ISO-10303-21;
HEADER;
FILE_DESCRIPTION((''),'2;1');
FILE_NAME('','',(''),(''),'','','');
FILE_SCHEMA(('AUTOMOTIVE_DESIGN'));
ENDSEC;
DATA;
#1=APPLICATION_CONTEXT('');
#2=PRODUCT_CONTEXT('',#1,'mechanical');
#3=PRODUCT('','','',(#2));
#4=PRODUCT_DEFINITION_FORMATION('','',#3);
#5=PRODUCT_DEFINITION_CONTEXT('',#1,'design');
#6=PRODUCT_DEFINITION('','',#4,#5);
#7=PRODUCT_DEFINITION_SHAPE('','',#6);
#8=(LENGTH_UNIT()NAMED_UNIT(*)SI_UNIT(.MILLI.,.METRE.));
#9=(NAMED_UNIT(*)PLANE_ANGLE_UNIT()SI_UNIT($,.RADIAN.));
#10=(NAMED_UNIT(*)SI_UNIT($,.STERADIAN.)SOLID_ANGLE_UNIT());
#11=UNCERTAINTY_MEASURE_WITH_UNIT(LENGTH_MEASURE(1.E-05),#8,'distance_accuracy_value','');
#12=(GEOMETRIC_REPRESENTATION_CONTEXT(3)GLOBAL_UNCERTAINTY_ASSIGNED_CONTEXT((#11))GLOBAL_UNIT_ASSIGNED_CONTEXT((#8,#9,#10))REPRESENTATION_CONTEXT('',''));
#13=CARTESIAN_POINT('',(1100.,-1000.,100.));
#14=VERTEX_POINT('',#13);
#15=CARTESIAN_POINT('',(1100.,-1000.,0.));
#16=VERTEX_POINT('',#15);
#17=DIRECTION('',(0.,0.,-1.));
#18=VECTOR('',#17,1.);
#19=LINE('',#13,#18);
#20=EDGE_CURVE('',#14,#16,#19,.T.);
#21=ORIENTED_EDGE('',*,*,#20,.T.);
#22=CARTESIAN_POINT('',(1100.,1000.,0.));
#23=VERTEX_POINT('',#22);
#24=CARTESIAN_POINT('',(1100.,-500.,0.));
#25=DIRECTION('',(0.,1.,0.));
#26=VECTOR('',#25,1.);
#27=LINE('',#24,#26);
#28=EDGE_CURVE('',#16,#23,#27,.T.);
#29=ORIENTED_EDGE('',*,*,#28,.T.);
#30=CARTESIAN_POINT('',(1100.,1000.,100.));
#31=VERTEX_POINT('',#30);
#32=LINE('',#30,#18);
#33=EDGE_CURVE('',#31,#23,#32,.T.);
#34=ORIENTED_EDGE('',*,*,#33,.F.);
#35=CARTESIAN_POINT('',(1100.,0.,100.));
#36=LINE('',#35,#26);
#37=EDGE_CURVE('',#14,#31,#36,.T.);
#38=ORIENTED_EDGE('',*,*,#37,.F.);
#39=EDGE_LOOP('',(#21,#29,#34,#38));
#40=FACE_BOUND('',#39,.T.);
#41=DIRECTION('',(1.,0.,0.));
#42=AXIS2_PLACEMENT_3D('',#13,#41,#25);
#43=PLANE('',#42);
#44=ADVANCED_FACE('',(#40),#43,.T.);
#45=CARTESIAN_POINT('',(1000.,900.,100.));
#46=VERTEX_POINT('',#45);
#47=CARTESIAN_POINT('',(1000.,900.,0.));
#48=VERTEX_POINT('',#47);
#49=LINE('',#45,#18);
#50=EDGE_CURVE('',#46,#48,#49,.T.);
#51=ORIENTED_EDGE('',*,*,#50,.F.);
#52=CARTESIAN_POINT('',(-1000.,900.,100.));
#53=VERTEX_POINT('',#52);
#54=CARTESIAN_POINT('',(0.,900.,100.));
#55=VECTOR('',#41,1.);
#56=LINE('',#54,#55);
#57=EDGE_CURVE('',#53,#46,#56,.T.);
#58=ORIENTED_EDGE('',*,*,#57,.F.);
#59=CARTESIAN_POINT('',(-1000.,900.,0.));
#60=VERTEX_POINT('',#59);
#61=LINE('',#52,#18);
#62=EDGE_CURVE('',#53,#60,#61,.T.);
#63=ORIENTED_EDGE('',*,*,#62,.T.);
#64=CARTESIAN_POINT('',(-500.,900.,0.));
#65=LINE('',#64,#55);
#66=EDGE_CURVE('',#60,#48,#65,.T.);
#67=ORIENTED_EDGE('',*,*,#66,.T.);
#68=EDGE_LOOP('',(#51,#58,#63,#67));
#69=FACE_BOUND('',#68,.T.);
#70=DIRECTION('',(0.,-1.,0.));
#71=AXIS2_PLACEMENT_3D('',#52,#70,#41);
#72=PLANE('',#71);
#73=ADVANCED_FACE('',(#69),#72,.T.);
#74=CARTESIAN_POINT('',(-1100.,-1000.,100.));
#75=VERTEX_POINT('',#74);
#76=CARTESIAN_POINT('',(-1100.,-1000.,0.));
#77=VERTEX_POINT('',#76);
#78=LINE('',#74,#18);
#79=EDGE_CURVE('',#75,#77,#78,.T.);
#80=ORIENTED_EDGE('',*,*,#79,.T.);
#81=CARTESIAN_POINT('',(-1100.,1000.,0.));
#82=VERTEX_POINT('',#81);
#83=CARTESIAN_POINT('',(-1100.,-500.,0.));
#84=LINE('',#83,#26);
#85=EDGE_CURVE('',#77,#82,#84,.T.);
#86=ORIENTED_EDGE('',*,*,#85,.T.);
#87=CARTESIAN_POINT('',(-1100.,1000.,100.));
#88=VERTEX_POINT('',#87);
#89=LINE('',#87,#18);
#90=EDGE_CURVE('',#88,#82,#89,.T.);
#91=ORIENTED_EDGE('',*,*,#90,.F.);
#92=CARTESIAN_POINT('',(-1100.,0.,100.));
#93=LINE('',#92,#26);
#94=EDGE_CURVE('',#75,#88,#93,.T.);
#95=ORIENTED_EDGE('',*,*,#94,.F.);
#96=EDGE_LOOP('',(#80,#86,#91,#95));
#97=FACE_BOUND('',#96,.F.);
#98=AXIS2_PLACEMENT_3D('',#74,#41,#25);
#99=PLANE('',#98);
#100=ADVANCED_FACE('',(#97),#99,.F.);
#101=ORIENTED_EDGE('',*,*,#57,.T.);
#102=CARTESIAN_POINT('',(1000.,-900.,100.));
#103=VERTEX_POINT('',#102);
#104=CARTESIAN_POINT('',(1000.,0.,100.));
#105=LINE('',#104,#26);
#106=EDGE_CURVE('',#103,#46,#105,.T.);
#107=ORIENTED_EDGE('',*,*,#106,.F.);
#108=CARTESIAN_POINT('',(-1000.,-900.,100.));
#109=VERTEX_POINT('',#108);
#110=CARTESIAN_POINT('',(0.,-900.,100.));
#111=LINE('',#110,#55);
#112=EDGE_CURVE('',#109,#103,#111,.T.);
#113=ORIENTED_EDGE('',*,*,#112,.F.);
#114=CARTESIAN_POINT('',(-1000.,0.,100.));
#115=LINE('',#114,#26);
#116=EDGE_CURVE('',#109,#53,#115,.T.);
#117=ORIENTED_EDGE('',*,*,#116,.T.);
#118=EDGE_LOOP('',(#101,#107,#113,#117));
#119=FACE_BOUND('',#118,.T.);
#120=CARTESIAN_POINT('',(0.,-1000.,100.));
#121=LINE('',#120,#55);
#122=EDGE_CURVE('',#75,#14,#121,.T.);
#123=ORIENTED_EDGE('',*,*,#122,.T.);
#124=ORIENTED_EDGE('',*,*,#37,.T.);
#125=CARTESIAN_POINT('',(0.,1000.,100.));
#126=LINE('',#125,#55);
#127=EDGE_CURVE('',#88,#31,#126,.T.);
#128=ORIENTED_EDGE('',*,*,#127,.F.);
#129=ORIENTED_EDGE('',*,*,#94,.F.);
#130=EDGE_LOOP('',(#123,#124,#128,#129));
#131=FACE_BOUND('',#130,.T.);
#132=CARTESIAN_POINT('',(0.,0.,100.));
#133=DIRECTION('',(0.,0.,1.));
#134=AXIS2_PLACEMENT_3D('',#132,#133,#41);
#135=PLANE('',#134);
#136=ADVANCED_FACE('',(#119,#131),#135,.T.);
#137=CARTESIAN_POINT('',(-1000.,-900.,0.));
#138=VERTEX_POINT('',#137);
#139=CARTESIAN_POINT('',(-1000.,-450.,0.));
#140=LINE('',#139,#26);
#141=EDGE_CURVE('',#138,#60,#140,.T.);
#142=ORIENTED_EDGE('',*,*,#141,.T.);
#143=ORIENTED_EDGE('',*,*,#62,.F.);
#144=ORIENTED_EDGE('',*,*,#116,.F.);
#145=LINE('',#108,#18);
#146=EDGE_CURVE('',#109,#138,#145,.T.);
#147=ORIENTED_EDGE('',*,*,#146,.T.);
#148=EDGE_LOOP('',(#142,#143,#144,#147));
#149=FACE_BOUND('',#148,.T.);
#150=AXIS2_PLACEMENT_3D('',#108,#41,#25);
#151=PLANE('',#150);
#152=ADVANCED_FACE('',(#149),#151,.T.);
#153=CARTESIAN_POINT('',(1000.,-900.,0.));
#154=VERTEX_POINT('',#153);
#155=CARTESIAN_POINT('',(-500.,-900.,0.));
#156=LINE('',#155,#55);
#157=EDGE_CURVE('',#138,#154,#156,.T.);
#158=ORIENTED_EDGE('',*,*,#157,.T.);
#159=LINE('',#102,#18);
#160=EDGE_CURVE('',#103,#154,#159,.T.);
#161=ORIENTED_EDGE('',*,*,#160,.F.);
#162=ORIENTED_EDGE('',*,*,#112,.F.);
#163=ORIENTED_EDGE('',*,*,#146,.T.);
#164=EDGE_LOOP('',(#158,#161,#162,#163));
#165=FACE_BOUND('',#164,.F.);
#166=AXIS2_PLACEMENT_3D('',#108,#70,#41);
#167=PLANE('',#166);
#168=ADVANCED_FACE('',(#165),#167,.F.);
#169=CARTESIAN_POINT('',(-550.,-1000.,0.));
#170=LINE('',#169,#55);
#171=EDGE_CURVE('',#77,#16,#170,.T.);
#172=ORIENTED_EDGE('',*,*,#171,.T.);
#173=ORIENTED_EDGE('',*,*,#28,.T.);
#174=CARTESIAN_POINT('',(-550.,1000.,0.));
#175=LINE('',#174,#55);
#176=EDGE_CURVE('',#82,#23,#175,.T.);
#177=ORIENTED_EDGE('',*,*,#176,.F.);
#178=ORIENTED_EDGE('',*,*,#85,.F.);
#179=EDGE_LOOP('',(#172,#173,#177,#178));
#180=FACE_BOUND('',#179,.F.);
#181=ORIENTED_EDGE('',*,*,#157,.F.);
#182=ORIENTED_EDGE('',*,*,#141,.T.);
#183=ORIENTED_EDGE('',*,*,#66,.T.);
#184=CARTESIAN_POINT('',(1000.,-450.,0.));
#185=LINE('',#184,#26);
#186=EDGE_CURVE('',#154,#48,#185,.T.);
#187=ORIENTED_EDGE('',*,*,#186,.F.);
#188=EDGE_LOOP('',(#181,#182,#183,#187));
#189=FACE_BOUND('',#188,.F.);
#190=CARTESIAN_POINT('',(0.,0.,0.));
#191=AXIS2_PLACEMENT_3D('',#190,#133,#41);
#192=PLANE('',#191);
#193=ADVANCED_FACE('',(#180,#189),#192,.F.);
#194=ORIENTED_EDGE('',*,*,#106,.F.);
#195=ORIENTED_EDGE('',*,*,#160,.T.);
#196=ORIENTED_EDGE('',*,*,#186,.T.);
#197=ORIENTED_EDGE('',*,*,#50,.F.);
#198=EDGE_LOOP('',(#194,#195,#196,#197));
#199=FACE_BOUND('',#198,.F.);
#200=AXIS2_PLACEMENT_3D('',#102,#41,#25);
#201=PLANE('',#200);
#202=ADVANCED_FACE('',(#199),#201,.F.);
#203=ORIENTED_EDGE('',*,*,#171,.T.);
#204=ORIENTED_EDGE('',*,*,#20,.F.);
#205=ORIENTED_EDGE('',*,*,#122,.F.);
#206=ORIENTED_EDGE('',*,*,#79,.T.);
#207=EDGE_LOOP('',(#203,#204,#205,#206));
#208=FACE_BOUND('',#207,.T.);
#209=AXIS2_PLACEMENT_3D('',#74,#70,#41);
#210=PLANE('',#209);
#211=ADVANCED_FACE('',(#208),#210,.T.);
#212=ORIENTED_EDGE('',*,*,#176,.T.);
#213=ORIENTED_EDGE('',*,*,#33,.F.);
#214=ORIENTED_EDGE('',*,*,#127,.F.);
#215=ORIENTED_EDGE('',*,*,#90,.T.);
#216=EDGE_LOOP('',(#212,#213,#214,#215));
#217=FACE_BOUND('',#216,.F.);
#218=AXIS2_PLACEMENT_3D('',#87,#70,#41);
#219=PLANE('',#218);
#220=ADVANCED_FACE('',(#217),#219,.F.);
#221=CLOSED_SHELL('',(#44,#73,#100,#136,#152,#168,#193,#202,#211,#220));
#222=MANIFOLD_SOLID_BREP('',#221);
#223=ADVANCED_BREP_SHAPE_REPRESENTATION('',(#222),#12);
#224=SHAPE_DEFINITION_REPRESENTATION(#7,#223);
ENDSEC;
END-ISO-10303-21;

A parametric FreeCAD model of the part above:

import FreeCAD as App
import Part
import Sketcher
from FreeCAD import Vector

doc = App.newDocument("Part")
body = doc.addObject("PartDesign::Body", "Body")

# Sketch on XY plane
sketch1 = body.newObject("Sketcher::SketchObject", "Sketch")
sketch1.AttachmentSupport = (doc.getObject("XY_Plane"), [""])
sketch1.MapMode = "FlatFace"
sketch1.addGeometry(Part.LineSegment(Vector(-1200, 1100, 0), Vector(-1200, -1100, 0)), False)
sketch1.addGeometry(Part.LineSegment(Vector(-1200, -1100, 0), Vector(1200, -1100, 0)), False)
sketch1.addGeometry(Part.LineSegment(Vector(1200, -1100, 0), Vector(1200, 1100, 0)), False)
sketch1.addGeometry(Part.LineSegment(Vector(1200, 1100, 0), Vector(-1200, 1100, 0)), False)
sketch1.addConstraint(Sketcher.Constraint("Coincident", 0, 2, 1, 1))
sketch1.addConstraint(Sketcher.Constraint("Coincident", 1, 2, 2, 1))
sketch1.addConstraint(Sketcher.Constraint("Coincident", 2, 2, 3, 1))
sketch1.addConstraint(Sketcher.Constraint("Coincident", 3, 2, 0, 1))
sketch1.addConstraint(Sketcher.Constraint("Vertical", 0))
sketch1.addConstraint(Sketcher.Constraint("Horizontal", 1))
sketch1.addConstraint(Sketcher.Constraint("Vertical", 2))
sketch1.addConstraint(Sketcher.Constraint("Horizontal", 3))
sketch1.addConstraint(Sketcher.Constraint("Symmetric", 0, 2, 2, 2, -1, 1))
sketch1.addConstraint(Sketcher.Constraint("DistanceX", 1, 1, 1, 2, 2400.0))
sketch1.addConstraint(Sketcher.Constraint("DistanceY", 0, 2, 0, 1, 2200.0))
pad1 = body.newObject("PartDesign::Pad", "Pad")
pad1.Profile = sketch1
pad1.Length = 100

# Sketch on XY plane
sketch2 = body.newObject("Sketcher::SketchObject", "Sketch001")
sketch2.AttachmentSupport = (doc.getObject("XY_Plane"), [""])
sketch2.MapMode = "FlatFace"
sketch2.AttachmentOffset = App.Placement(Vector(0, 0, 100), App.Rotation())
sketch2.addGeometry(Part.LineSegment(Vector(-1200, 1100, 0), Vector(-1200, -1100, 0)), False)
sketch2.addGeometry(Part.LineSegment(Vector(-1200, -1100, 0), Vector(1200, -1100, 0)), False)
sketch2.addGeometry(Part.LineSegment(Vector(1200, -1100, 0), Vector(1200, 1100, 0)), False)
sketch2.addGeometry(Part.LineSegment(Vector(1200, 1100, 0), Vector(-1200, 1100, 0)), False)
sketch2.addGeometry(Part.LineSegment(Vector(1100, -1000, 0), Vector(-1100, -1000, 0)), False)
sketch2.addGeometry(Part.LineSegment(Vector(-1100, -1000, 0), Vector(-1100, 1000, 0)), False)
sketch2.addGeometry(Part.LineSegment(Vector(-1100, 1000, 0), Vector(1100, 1000, 0)), False)
sketch2.addGeometry(Part.LineSegment(Vector(1100, 1000, 0), Vector(1100, -1000, 0)), False)
sketch2.addConstraint(Sketcher.Constraint("Coincident", 0, 2, 1, 1))
sketch2.addConstraint(Sketcher.Constraint("Coincident", 1, 2, 2, 1))
sketch2.addConstraint(Sketcher.Constraint("Coincident", 2, 2, 3, 1))
sketch2.addConstraint(Sketcher.Constraint("Coincident", 3, 2, 0, 1))
sketch2.addConstraint(Sketcher.Constraint("Coincident", 4, 2, 5, 1))
sketch2.addConstraint(Sketcher.Constraint("Coincident", 5, 2, 6, 1))
sketch2.addConstraint(Sketcher.Constraint("Coincident", 6, 2, 7, 1))
sketch2.addConstraint(Sketcher.Constraint("Coincident", 7, 2, 4, 1))
sketch2.addConstraint(Sketcher.Constraint("Vertical", 0))
sketch2.addConstraint(Sketcher.Constraint("Horizontal", 1))
sketch2.addConstraint(Sketcher.Constraint("Vertical", 2))
sketch2.addConstraint(Sketcher.Constraint("Horizontal", 3))
sketch2.addConstraint(Sketcher.Constraint("Horizontal", 4))
sketch2.addConstraint(Sketcher.Constraint("Vertical", 5))
sketch2.addConstraint(Sketcher.Constraint("Horizontal", 6))
sketch2.addConstraint(Sketcher.Constraint("Vertical", 7))
sketch2.addConstraint(Sketcher.Constraint("Symmetric", 0, 2, 2, 2, -1, 1))
sketch2.addConstraint(Sketcher.Constraint("Symmetric", 4, 2, 6, 2, -1, 1))
sketch2.addConstraint(Sketcher.Constraint("Equal", 6, 0))
sketch2.addConstraint(Sketcher.Constraint("DistanceX", 1, 1, 1, 2, 2400.0))
sketch2.addConstraint(Sketcher.Constraint("DistanceX", 4, 2, 4, 1, 2200.0))
sketch2.addConstraint(Sketcher.Constraint("DistanceY", 5, 1, 5, 2, 2000.0))
pocket1 = body.newObject("PartDesign::Pocket", "Pocket")
pocket1.Profile = sketch2
pocket1.Type = "ThroughAll"

# Sketch on XY plane
sketch3 = body.newObject("Sketcher::SketchObject", "Sketch002")
sketch3.AttachmentSupport = (doc.getObject("XY_Plane"), [""])
sketch3.MapMode = "FlatFace"
sketch3.AttachmentOffset = App.Placement(Vector(0, 0, 100), App.Rotation())
sketch3.addGeometry(Part.LineSegment(Vector(-1000, 900, 0), Vector(-1000, -900, 0)), False)
sketch3.addGeometry(Part.LineSegment(Vector(-1000, -900, 0), Vector(1000, -900, 0)), False)
sketch3.addGeometry(Part.LineSegment(Vector(1000, -900, 0), Vector(1000, 900, 0)), False)
sketch3.addGeometry(Part.LineSegment(Vector(1000, 900, 0), Vector(-1000, 900, 0)), False)
sketch3.addConstraint(Sketcher.Constraint("Coincident", 0, 2, 1, 1))
sketch3.addConstraint(Sketcher.Constraint("Coincident", 1, 2, 2, 1))
sketch3.addConstraint(Sketcher.Constraint("Coincident", 2, 2, 3, 1))
sketch3.addConstraint(Sketcher.Constraint("Coincident", 3, 2, 0, 1))
sketch3.addConstraint(Sketcher.Constraint("Vertical", 0))
sketch3.addConstraint(Sketcher.Constraint("Horizontal", 1))
sketch3.addConstraint(Sketcher.Constraint("Vertical", 2))
sketch3.addConstraint(Sketcher.Constraint("Horizontal", 3))
sketch3.addConstraint(Sketcher.Constraint("Symmetric", 0, 2, 2, 2, -1, 1))
sketch3.addConstraint(Sketcher.Constraint("DistanceX", 1, 1, 1, 2, 2000.0))
sketch3.addConstraint(Sketcher.Constraint("DistanceY", 0, 2, 0, 1, 1800.0))
pocket2 = body.newObject("PartDesign::Pocket", "Pocket001")
pocket2.Profile = sketch3
pocket2.Type = "ThroughAll"

doc.recompute()
